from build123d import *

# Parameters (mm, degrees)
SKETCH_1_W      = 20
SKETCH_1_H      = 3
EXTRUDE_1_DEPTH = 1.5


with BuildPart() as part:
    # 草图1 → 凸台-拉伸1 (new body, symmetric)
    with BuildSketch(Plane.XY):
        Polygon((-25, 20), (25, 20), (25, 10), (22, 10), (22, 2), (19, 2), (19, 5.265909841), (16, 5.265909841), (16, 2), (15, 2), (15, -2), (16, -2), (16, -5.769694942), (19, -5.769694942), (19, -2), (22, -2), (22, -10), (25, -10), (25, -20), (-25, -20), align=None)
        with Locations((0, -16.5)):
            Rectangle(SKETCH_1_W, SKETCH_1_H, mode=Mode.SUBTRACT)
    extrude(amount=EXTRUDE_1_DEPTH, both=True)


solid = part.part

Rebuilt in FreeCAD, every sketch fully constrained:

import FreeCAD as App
import Part
import Sketcher

V = App.Vector
Q = App.Units.Quantity


def add_polygon(sketch, points):
    """Adds a closed chain of lines whose ends are joined by coincident constraints."""
    first, n = sketch.GeometryCount, len(points)
    for a, b in zip(points, points[1:] + points[:1]):
        sketch.addGeometry(Part.LineSegment(App.Vector(*a, 0), App.Vector(*b, 0)), False)
    for i in range(n):
        sketch.addConstraint(Sketcher.Constraint("Coincident", first + i, 2, first + (i + 1) % n, 1))

doc = App.newDocument("Part")
params = doc.addObject("Spreadsheet::Sheet", "Params")
for row, (alias, value) in enumerate([
    ("sketch1_width", "50 mm"),
    ("sketch1_width2", "3 mm"),
    ("sketch1_width3", "1 mm"),
    ("sketch1_width4", "20 mm"),
    ("sketch1_height", "40 mm"),
    ("pad1_length", "3 mm"),
], start=1):
    params.set(f"A{row}", alias)
    params.set(f"B{row}", "=" + value)
    params.setAlias(f"B{row}", alias)

body = doc.addObject("PartDesign::Body", "Body")

sketch1 = body.newObject("Sketcher::SketchObject", "Sketch")
sketch1.AttachmentSupport = (doc.getObject("XY_Plane"), [""])
sketch1.MapMode = "FlatFace"
add_polygon(sketch1, [(25, 20), (-25, 20), (-25, -20), (25, -20), (25, -10), (22, -10), (22, -2), (19, -2), (19, -5.769695), (16, -5.769695), (16, -2), (15, -2), (15, 2), (16, 2), (16, 5.26591), (19, 5.26591), (19, 2), (22, 2), (22, 10), (25, 10)])
add_polygon(sketch1, [(-10, -18), (-10, -15), (10, -15), (10, -18)])
sketch1.addConstraint(Sketcher.Constraint("Horizontal", 0))
sketch1.addConstraint(Sketcher.Constraint("Vertical", 1))
sketch1.addConstraint(Sketcher.Constraint("Horizontal", 2))
sketch1.addConstraint(Sketcher.Constraint("Vertical", 3))
sketch1.addConstraint(Sketcher.Constraint("Horizontal", 4))
sketch1.addConstraint(Sketcher.Constraint("Vertical", 5))
sketch1.addConstraint(Sketcher.Constraint("Horizontal", 6))
sketch1.addConstraint(Sketcher.Constraint("Vertical", 7))
sketch1.addConstraint(Sketcher.Constraint("Horizontal", 8))
sketch1.addConstraint(Sketcher.Constraint("Vertical", 9))
sketch1.addConstraint(Sketcher.Constraint("Horizontal", 10))
sketch1.addConstraint(Sketcher.Constraint("Vertical", 11))
sketch1.addConstraint(Sketcher.Constraint("Horizontal", 12))
sketch1.addConstraint(Sketcher.Constraint("Vertical", 13))
sketch1.addConstraint(Sketcher.Constraint("Horizontal", 14))
sketch1.addConstraint(Sketcher.Constraint("Vertical", 15))
sketch1.addConstraint(Sketcher.Constraint("Horizontal", 16))
sketch1.addConstraint(Sketcher.Constraint("Vertical", 17))
sketch1.addConstraint(Sketcher.Constraint("Horizontal", 18))
sketch1.addConstraint(Sketcher.Constraint("Vertical", 19))
sketch1.addConstraint(Sketcher.Constraint("Vertical", 20))
sketch1.addConstraint(Sketcher.Constraint("Horizontal", 21))
sketch1.addConstraint(Sketcher.Constraint("Vertical", 22))
sketch1.addConstraint(Sketcher.Constraint("Horizontal", 23))
sketch1.addConstraint(Sketcher.Constraint("Symmetric", 0, 2, 2, 2, -1, 1))
sketch1.addConstraint(Sketcher.Constraint("Symmetric", 9, 2, 12, 2, -1))
sketch1.addConstraint(Sketcher.Constraint("Symmetric", 6, 2, 15, 2, -1))
sketch1.addConstraint(Sketcher.Constraint("Symmetric", 4, 2, 17, 2, -1))
sketch1.addConstraint(Sketcher.Constraint("Horizontal", 6, 2, 9, 2))
sketch1.addConstraint(Sketcher.Constraint("Vertical", 3, 2, 18, 2))
sketch1.addConstraint(Sketcher.Constraint("Equal", 4, 6))
sketch1.addConstraint(Sketcher.Constraint("Equal", 6, 8))
sketch1.addConstraint(Sketcher.Constraint("Equal", 18, 20))
sketch1.addConstraint(Sketcher.Constraint("DistanceX", 0, 2, 0, 1, Q("50 mm")))
sketch1.addConstraint(Sketcher.Constraint("DistanceX", 4, 2, 4, 1, Q("3 mm")))
sketch1.addConstraint(Sketcher.Constraint("DistanceX", 10, 2, 10, 1, Q("1 mm")))
sketch1.addConstraint(Sketcher.Constraint("DistanceX", 21, 1, 21, 2, Q("20 mm")))
sketch1.addConstraint(Sketcher.Constraint("DistanceY", 1, 2, 1, 1, Q("40 mm")))
sketch1.addConstraint(Sketcher.Constraint("DistanceY", 3, 1, 3, 2, Q("10 mm")))
sketch1.addConstraint(Sketcher.Constraint("DistanceY", 5, 1, 5, 2, Q("8 mm")))
sketch1.addConstraint(Sketcher.Constraint("DistanceX", 20, 2, -1, 1, Q("10 mm")))
sketch1.addConstraint(Sketcher.Constraint("DistanceY", 20, 2, -1, 1, Q("15 mm")))
sketch1.addConstraint(Sketcher.Constraint("DistanceY", 13, 1, 13, 2, Q("3.26591 mm")))
sketch1.addConstraint(Sketcher.Constraint("DistanceY", 7, 2, 7, 1, Q("3.769695 mm")))
sketch1.setExpression("Constraints[57]", "Params.sketch1_width")
sketch1.setExpression("Constraints[58]", "Params.sketch1_width2")
sketch1.setExpression("Constraints[59]", "Params.sketch1_width3")
sketch1.setExpression("Constraints[60]", "Params.sketch1_width4")
sketch1.setExpression("Constraints[61]", "Params.sketch1_height")
pad1 = body.newObject("PartDesign::Pad", "Pad")
pad1.Profile = sketch1
pad1.setExpression("Length", "Params.pad1_length")
pad1.Midplane = True

doc.recompute()
